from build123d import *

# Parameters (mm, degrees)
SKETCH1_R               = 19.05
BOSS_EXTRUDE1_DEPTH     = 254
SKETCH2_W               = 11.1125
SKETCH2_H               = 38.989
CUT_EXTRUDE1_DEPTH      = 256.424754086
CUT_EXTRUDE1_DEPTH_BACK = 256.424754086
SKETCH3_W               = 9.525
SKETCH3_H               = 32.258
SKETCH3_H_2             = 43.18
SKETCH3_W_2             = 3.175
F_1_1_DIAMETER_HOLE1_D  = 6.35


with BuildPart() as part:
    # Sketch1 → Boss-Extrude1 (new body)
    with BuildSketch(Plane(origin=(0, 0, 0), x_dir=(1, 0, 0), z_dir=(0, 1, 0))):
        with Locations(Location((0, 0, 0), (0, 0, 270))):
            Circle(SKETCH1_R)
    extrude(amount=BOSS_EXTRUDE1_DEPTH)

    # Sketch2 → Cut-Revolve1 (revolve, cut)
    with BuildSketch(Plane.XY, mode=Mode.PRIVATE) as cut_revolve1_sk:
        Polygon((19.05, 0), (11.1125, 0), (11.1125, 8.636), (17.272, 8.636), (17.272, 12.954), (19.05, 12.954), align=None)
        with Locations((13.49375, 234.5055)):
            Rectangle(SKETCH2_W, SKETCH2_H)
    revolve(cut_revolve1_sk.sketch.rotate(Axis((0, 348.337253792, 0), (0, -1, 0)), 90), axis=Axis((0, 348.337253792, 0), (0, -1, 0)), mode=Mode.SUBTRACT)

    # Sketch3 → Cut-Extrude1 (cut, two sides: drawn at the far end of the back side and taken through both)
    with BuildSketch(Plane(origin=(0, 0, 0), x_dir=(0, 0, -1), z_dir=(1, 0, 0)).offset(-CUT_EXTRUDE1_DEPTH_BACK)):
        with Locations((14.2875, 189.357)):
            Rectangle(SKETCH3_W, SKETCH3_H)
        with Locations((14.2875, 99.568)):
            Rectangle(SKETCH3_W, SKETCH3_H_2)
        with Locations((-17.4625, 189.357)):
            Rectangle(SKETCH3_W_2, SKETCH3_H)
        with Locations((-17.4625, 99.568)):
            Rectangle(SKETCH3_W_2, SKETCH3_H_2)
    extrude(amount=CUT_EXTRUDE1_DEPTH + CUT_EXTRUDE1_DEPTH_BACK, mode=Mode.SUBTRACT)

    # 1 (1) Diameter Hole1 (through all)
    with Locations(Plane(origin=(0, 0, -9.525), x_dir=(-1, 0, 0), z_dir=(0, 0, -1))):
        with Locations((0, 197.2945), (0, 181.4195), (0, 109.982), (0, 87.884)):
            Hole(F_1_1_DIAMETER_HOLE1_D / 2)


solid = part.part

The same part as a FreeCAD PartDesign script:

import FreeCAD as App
import Part
import Sketcher
from FreeCAD import Vector
Q = App.Units.Quantity

doc = App.newDocument("Part")
params = doc.addObject("Spreadsheet::Sheet", "Params")
for row, (alias, value) in enumerate([
    ("sketch1_diameter", "1.5 in"),
    ("pad1_length", "10 in"),
    ("sketch2_width", "0.07 in"),
    ("sketch2_height", "0.51 in"),
    ("sketch2_height2", "0.17 in"),
    ("sketch2_width2", "0.3125 in"),
    ("sketch2_width3", "0.4375 in"),
    ("groove_angle", "360 deg"),
    ("sketch3_width", "1.7 in"),
    ("sketch3_width2", "1.27 in"),
    ("sketch3_height", "0.375 in"),
    ("sketch4_diameter", "0.25 in"),
    ("hole_diameter", "0.25 in"),
], start=1):
    params.set(f"A{row}", alias)
    params.set(f"B{row}", "=" + value)
    params.setAlias(f"B{row}", alias)

body = doc.addObject("PartDesign::Body", "Body")

# Sketch on XZ plane
sketch1 = body.newObject("Sketcher::SketchObject", "Sketch")
sketch1.AttachmentSupport = (doc.getObject("XZ_Plane"), [""])
sketch1.MapMode = "FlatFace"
sketch1.addGeometry(Part.Circle(Vector(0, 0, 0), Vector(0, 0, 1), 19.05), False)
sketch1.addConstraint([
    Sketcher.Constraint("Coincident", 0, 3, -1, 1),
    Sketcher.Constraint("Diameter", 0, Q("1.5 in")),
])
sketch1.setExpression("Constraints[1]", "Params.sketch1_diameter")
pad1 = body.newObject("PartDesign::Pad", "Pad")
pad1.Profile = sketch1
pad1.setExpression("Length", "Params.pad1_length")
pad1.Reversed = True

# Sketch on XY plane
sketch2 = body.newObject("Sketcher::SketchObject", "Sketch001")
sketch2.AttachmentSupport = (doc.getObject("XY_Plane"), [""])
sketch2.MapMode = "FlatFace"
sketch2.addGeometry([
    Part.LineSegment(Vector(11.1125, 0, 0), Vector(19.05, 0, 0)),  # 0
    Part.LineSegment(Vector(19.05, 0, 0), Vector(19.05, 12.954, 0)),  # 1
    Part.LineSegment(Vector(19.05, 12.954, 0), Vector(17.272, 12.954, 0)),  # 2
    Part.LineSegment(Vector(17.272, 12.954, 0), Vector(17.272, 8.636, 0)),  # 3
    Part.LineSegment(Vector(17.272, 8.636, 0), Vector(11.1125, 8.636, 0)),  # 4
    Part.LineSegment(Vector(11.1125, 8.636, 0), Vector(11.1125, 0, 0)),  # 5
    Part.LineSegment(Vector(7.9375, 254, 0), Vector(7.9375, 215.011, 0)),  # 6
    Part.LineSegment(Vector(7.9375, 215.011, 0), Vector(19.05, 215.011, 0)),  # 7
    Part.LineSegment(Vector(19.05, 215.011, 0), Vector(19.05, 254, 0)),  # 8
    Part.LineSegment(Vector(19.05, 254, 0), Vector(7.9375, 254, 0)),  # 9
], False)
sketch2.addConstraint([
    Sketcher.Constraint("Coincident", 0, 2, 1, 1),
    Sketcher.Constraint("Coincident", 1, 2, 2, 1),
    Sketcher.Constraint("Coincident", 2, 2, 3, 1),
    Sketcher.Constraint("Coincident", 3, 2, 4, 1),
    Sketcher.Constraint("Coincident", 4, 2, 5, 1),
    Sketcher.Constraint("Coincident", 5, 2, 0, 1),
    Sketcher.Constraint("Coincident", 6, 2, 7, 1),
    Sketcher.Constraint("Coincident", 7, 2, 8, 1),
    Sketcher.Constraint("Coincident", 8, 2, 9, 1),
    Sketcher.Constraint("Coincident", 9, 2, 6, 1),
    Sketcher.Constraint("Horizontal", 0),
    Sketcher.Constraint("Vertical", 1),
    Sketcher.Constraint("Horizontal", 2),
    Sketcher.Constraint("Vertical", 3),
    Sketcher.Constraint("Horizontal", 4),
    Sketcher.Constraint("Vertical", 5),
    Sketcher.Constraint("Vertical", 6),
    Sketcher.Constraint("Horizontal", 7),
    Sketcher.Constraint("Vertical", 8),
    Sketcher.Constraint("Horizontal", 9),
    Sketcher.Constraint("PointOnObject", 0, 2, -1),
    Sketcher.Constraint("Vertical", 1, 2, 7, 2),
    Sketcher.Constraint("DistanceY", -1, 1, 8, 2, Q("10 in")),
    Sketcher.Constraint("DistanceX", 2, 2, 2, 1, Q("0.07 in")),
    Sketcher.Constraint("DistanceY", 1, 1, 1, 2, Q("0.51 in")),
    Sketcher.Constraint("DistanceY", 3, 2, 3, 1, Q("0.17 in")),
    Sketcher.Constraint("DistanceX", 0, 1, 0, 2, Q("0.3125 in")),
    Sketcher.Constraint("DistanceX", 7, 1, 7, 2, Q("0.4375 in")),
    Sketcher.Constraint("DistanceY", 6, 2, 6, 1, Q("1.535 in")),
    Sketcher.Constraint("DistanceX", -1, 1, 0, 2, Q("0.75 in")),
])
sketch2.setExpression("Constraints[23]", "Params.sketch2_width")
sketch2.setExpression("Constraints[24]", "Params.sketch2_height")
sketch2.setExpression("Constraints[25]", "Params.sketch2_height2")
sketch2.setExpression("Constraints[26]", "Params.sketch2_width2")
sketch2.setExpression("Constraints[27]", "Params.sketch2_width3")
groove = body.newObject("PartDesign::Groove", "Groove")
groove.Profile = sketch2
groove.ReferenceAxis = (sketch2, ["V_Axis"])
groove.setExpression("Angle", "Params.groove_angle")

# Sketch on YZ plane
sketch3 = body.newObject("Sketcher::SketchObject", "Sketch002")
sketch3.AttachmentSupport = (doc.getObject("YZ_Plane"), [""])
sketch3.MapMode = "FlatFace"
sketch3.addGeometry([
    Part.LineSegment(Vector(205.486, -9.525, 0), Vector(173.228, -9.525, 0)),  # 0
    Part.LineSegment(Vector(173.228, -9.525, 0), Vector(173.228, -19.05, 0)),  # 1
    Part.LineSegment(Vector(173.228, -19.05, 0), Vector(205.486, -19.05, 0)),  # 2
    Part.LineSegment(Vector(205.486, -19.05, 0), Vector(205.486, -9.525, 0)),  # 3
    Part.LineSegment(Vector(121.158, -9.525, 0), Vector(77.978, -9.525, 0)),  # 4
    Part.LineSegment(Vector(77.978, -9.525, 0), Vector(77.978, -19.05, 0)),  # 5
    Part.LineSegment(Vector(77.978, -19.05, 0), Vector(121.158, -19.05, 0)),  # 6
    Part.LineSegment(Vector(121.158, -19.05, 0), Vector(121.158, -9.525, 0)),  # 7
    Part.LineSegment(Vector(205.486, 19.05, 0), Vector(173.228, 19.05, 0)),  # 8
    Part.LineSegment(Vector(173.228, 19.05, 0), Vector(173.228, 15.875, 0)),  # 9
    Part.LineSegment(Vector(173.228, 15.875, 0), Vector(205.486, 15.875, 0)),  # 10
    Part.LineSegment(Vector(205.486, 15.875, 0), Vector(205.486, 19.05, 0)),  # 11
    Part.LineSegment(Vector(121.158, 19.05, 0), Vector(77.978, 19.05, 0)),  # 12
    Part.LineSegment(Vector(77.978, 19.05, 0), Vector(77.978, 15.875, 0)),  # 13
    Part.LineSegment(Vector(77.978, 15.875, 0), Vector(121.158, 15.875, 0)),  # 14
    Part.LineSegment(Vector(121.158, 15.875, 0), Vector(121.158, 19.05, 0)),  # 15
], False)
sketch3.addConstraint([
    Sketcher.Constraint("Coincident", 0, 2, 1, 1),
    Sketcher.Constraint("Coincident", 1, 2, 2, 1),
    Sketcher.Constraint("Coincident", 2, 2, 3, 1),
    Sketcher.Constraint("Coincident", 3, 2, 0, 1),
    Sketcher.Constraint("Coincident", 4, 2, 5, 1),
    Sketcher.Constraint("Coincident", 5, 2, 6, 1),
    Sketcher.Constraint("Coincident", 6, 2, 7, 1),
    Sketcher.Constraint("Coincident", 7, 2, 4, 1),
    Sketcher.Constraint("Coincident", 8, 2, 9, 1),
    Sketcher.Constraint("Coincident", 9, 2, 10, 1),
    Sketcher.Constraint("Coincident", 10, 2, 11, 1),
    Sketcher.Constraint("Coincident", 11, 2, 8, 1),
    Sketcher.Constraint("Coincident", 12, 2, 13, 1),
    Sketcher.Constraint("Coincident", 13, 2, 14, 1),
    Sketcher.Constraint("Coincident", 14, 2, 15, 1),
    Sketcher.Constraint("Coincident", 15, 2, 12, 1),
    Sketcher.Constraint("Horizontal", 0),
    Sketcher.Constraint("Vertical", 1),
    Sketcher.Constraint("Horizontal", 2),
    Sketcher.Constraint("Vertical", 3),
    Sketcher.Constraint("Horizontal", 4),
    Sketcher.Constraint("Vertical", 5),
    Sketcher.Constraint("Horizontal", 6),
    Sketcher.Constraint("Vertical", 7),
    Sketcher.Constraint("Horizontal", 8),
    Sketcher.Constraint("Vertical", 9),
    Sketcher.Constraint("Horizontal", 10),
    Sketcher.Constraint("Vertical", 11),
    Sketcher.Constraint("Horizontal", 12),
    Sketcher.Constraint("Vertical", 13),
    Sketcher.Constraint("Horizontal", 14),
    Sketcher.Constraint("Vertical", 15),
    Sketcher.Constraint("Symmetric", 1, 2, 8, 2, -1),
    Sketcher.Constraint("Symmetric", 5, 2, 12, 2, -1),
    Sketcher.Constraint("Horizontal", 3, 2, 4, 2),
    Sketcher.Constraint("Horizontal", 2, 2, 5, 2),
    Sketcher.Constraint("Horizontal", 10, 2, 13, 2),
    Sketcher.Constraint("Vertical", 3, 2, 10, 2),
    Sketcher.Constraint("Vertical", 7, 2, 14, 2),
    Sketcher.Constraint("DistanceX", 4, 2, 4, 1, Q("1.7 in")),
    Sketcher.Constraint("DistanceY", 0, 2, 9, 2, Q("1 in")),
    Sketcher.Constraint("DistanceX", 0, 2, 0, 1, Q("1.27 in")),
    Sketcher.Constraint("DistanceY", 1, 2, 8, 2, Q("1.5 in")),
    Sketcher.Constraint("DistanceY", 1, 2, 1, 1, Q("0.375 in")),
    Sketcher.Constraint("DistanceX", -1, 1, 0, 2, Q("6.82 in")),
    Sketcher.Constraint("DistanceX", -1, 1, 4, 2, Q("3.07 in")),
])
sketch3.setExpression("Constraints[39]", "Params.sketch3_width")
sketch3.setExpression("Constraints[41]", "Params.sketch3_width2")
sketch3.setExpression("Constraints[43]", "Params.sketch3_height")
pocket1 = body.newObject("PartDesign::Pocket", "Pocket")
pocket1.Profile = sketch3
pocket1.Type = "ThroughAll"
pocket1.Midplane = True

# Sketch on XY plane
sketch4 = body.newObject("Sketcher::SketchObject", "Sketch003")
sketch4.AttachmentSupport = (doc.getObject("XY_Plane"), [""])
sketch4.MapMode = "FlatFace"
sketch4.AttachmentOffset = App.Placement(Vector(0, 0, -0.375 * 25.4), App.Rotation())
sketch4.addGeometry([
    Part.Circle(Vector(0, 197.2945, 0), Vector(0, 0, 1), 3.175),
    Part.Circle(Vector(0, 181.4195, 0), Vector(0, 0, 1), 3.175),
    Part.Circle(Vector(0, 109.982, 0), Vector(0, 0, 1), 3.175),
    Part.Circle(Vector(0, 87.884, 0), Vector(0, 0, 1), 3.175),
], False)
sketch4.addConstraint([
    Sketcher.Constraint("Equal", 0, 1),
    Sketcher.Constraint("Equal", 1, 2),
    Sketcher.Constraint("Equal", 2, 3),
    Sketcher.Constraint("PointOnObject", 0, 3, -2),
    Sketcher.Constraint("PointOnObject", 1, 3, -2),
    Sketcher.Constraint("PointOnObject", 2, 3, -2),
    Sketcher.Constraint("PointOnObject", 3, 3, -2),
    Sketcher.Constraint("Diameter", 0, Q("0.25 in")),
    Sketcher.Constraint("DistanceY", -1, 1, 2, 3, Q("4.33 in")),
    Sketcher.Constraint("DistanceY", -1, 1, 3, 3, Q("3.46 in")),
    Sketcher.Constraint("DistanceY", 1, 3, 0, 3, Q("0.625 in")),
    Sketcher.Constraint("DistanceY", 2, 3, 1, 3, Q("2.8125 in")),
])
sketch4.setExpression("Constraints[7]", "Params.sketch4_diameter")
doc.recompute()
hole = body.newObject("PartDesign::Hole", "Hole")
hole.Profile = sketch4
hole.ThreadType = "None"
hole.setExpression("Diameter", "Params.hole_diameter")
hole.DepthType = "ThroughAll"
hole.Reversed = True

doc.recompute()
